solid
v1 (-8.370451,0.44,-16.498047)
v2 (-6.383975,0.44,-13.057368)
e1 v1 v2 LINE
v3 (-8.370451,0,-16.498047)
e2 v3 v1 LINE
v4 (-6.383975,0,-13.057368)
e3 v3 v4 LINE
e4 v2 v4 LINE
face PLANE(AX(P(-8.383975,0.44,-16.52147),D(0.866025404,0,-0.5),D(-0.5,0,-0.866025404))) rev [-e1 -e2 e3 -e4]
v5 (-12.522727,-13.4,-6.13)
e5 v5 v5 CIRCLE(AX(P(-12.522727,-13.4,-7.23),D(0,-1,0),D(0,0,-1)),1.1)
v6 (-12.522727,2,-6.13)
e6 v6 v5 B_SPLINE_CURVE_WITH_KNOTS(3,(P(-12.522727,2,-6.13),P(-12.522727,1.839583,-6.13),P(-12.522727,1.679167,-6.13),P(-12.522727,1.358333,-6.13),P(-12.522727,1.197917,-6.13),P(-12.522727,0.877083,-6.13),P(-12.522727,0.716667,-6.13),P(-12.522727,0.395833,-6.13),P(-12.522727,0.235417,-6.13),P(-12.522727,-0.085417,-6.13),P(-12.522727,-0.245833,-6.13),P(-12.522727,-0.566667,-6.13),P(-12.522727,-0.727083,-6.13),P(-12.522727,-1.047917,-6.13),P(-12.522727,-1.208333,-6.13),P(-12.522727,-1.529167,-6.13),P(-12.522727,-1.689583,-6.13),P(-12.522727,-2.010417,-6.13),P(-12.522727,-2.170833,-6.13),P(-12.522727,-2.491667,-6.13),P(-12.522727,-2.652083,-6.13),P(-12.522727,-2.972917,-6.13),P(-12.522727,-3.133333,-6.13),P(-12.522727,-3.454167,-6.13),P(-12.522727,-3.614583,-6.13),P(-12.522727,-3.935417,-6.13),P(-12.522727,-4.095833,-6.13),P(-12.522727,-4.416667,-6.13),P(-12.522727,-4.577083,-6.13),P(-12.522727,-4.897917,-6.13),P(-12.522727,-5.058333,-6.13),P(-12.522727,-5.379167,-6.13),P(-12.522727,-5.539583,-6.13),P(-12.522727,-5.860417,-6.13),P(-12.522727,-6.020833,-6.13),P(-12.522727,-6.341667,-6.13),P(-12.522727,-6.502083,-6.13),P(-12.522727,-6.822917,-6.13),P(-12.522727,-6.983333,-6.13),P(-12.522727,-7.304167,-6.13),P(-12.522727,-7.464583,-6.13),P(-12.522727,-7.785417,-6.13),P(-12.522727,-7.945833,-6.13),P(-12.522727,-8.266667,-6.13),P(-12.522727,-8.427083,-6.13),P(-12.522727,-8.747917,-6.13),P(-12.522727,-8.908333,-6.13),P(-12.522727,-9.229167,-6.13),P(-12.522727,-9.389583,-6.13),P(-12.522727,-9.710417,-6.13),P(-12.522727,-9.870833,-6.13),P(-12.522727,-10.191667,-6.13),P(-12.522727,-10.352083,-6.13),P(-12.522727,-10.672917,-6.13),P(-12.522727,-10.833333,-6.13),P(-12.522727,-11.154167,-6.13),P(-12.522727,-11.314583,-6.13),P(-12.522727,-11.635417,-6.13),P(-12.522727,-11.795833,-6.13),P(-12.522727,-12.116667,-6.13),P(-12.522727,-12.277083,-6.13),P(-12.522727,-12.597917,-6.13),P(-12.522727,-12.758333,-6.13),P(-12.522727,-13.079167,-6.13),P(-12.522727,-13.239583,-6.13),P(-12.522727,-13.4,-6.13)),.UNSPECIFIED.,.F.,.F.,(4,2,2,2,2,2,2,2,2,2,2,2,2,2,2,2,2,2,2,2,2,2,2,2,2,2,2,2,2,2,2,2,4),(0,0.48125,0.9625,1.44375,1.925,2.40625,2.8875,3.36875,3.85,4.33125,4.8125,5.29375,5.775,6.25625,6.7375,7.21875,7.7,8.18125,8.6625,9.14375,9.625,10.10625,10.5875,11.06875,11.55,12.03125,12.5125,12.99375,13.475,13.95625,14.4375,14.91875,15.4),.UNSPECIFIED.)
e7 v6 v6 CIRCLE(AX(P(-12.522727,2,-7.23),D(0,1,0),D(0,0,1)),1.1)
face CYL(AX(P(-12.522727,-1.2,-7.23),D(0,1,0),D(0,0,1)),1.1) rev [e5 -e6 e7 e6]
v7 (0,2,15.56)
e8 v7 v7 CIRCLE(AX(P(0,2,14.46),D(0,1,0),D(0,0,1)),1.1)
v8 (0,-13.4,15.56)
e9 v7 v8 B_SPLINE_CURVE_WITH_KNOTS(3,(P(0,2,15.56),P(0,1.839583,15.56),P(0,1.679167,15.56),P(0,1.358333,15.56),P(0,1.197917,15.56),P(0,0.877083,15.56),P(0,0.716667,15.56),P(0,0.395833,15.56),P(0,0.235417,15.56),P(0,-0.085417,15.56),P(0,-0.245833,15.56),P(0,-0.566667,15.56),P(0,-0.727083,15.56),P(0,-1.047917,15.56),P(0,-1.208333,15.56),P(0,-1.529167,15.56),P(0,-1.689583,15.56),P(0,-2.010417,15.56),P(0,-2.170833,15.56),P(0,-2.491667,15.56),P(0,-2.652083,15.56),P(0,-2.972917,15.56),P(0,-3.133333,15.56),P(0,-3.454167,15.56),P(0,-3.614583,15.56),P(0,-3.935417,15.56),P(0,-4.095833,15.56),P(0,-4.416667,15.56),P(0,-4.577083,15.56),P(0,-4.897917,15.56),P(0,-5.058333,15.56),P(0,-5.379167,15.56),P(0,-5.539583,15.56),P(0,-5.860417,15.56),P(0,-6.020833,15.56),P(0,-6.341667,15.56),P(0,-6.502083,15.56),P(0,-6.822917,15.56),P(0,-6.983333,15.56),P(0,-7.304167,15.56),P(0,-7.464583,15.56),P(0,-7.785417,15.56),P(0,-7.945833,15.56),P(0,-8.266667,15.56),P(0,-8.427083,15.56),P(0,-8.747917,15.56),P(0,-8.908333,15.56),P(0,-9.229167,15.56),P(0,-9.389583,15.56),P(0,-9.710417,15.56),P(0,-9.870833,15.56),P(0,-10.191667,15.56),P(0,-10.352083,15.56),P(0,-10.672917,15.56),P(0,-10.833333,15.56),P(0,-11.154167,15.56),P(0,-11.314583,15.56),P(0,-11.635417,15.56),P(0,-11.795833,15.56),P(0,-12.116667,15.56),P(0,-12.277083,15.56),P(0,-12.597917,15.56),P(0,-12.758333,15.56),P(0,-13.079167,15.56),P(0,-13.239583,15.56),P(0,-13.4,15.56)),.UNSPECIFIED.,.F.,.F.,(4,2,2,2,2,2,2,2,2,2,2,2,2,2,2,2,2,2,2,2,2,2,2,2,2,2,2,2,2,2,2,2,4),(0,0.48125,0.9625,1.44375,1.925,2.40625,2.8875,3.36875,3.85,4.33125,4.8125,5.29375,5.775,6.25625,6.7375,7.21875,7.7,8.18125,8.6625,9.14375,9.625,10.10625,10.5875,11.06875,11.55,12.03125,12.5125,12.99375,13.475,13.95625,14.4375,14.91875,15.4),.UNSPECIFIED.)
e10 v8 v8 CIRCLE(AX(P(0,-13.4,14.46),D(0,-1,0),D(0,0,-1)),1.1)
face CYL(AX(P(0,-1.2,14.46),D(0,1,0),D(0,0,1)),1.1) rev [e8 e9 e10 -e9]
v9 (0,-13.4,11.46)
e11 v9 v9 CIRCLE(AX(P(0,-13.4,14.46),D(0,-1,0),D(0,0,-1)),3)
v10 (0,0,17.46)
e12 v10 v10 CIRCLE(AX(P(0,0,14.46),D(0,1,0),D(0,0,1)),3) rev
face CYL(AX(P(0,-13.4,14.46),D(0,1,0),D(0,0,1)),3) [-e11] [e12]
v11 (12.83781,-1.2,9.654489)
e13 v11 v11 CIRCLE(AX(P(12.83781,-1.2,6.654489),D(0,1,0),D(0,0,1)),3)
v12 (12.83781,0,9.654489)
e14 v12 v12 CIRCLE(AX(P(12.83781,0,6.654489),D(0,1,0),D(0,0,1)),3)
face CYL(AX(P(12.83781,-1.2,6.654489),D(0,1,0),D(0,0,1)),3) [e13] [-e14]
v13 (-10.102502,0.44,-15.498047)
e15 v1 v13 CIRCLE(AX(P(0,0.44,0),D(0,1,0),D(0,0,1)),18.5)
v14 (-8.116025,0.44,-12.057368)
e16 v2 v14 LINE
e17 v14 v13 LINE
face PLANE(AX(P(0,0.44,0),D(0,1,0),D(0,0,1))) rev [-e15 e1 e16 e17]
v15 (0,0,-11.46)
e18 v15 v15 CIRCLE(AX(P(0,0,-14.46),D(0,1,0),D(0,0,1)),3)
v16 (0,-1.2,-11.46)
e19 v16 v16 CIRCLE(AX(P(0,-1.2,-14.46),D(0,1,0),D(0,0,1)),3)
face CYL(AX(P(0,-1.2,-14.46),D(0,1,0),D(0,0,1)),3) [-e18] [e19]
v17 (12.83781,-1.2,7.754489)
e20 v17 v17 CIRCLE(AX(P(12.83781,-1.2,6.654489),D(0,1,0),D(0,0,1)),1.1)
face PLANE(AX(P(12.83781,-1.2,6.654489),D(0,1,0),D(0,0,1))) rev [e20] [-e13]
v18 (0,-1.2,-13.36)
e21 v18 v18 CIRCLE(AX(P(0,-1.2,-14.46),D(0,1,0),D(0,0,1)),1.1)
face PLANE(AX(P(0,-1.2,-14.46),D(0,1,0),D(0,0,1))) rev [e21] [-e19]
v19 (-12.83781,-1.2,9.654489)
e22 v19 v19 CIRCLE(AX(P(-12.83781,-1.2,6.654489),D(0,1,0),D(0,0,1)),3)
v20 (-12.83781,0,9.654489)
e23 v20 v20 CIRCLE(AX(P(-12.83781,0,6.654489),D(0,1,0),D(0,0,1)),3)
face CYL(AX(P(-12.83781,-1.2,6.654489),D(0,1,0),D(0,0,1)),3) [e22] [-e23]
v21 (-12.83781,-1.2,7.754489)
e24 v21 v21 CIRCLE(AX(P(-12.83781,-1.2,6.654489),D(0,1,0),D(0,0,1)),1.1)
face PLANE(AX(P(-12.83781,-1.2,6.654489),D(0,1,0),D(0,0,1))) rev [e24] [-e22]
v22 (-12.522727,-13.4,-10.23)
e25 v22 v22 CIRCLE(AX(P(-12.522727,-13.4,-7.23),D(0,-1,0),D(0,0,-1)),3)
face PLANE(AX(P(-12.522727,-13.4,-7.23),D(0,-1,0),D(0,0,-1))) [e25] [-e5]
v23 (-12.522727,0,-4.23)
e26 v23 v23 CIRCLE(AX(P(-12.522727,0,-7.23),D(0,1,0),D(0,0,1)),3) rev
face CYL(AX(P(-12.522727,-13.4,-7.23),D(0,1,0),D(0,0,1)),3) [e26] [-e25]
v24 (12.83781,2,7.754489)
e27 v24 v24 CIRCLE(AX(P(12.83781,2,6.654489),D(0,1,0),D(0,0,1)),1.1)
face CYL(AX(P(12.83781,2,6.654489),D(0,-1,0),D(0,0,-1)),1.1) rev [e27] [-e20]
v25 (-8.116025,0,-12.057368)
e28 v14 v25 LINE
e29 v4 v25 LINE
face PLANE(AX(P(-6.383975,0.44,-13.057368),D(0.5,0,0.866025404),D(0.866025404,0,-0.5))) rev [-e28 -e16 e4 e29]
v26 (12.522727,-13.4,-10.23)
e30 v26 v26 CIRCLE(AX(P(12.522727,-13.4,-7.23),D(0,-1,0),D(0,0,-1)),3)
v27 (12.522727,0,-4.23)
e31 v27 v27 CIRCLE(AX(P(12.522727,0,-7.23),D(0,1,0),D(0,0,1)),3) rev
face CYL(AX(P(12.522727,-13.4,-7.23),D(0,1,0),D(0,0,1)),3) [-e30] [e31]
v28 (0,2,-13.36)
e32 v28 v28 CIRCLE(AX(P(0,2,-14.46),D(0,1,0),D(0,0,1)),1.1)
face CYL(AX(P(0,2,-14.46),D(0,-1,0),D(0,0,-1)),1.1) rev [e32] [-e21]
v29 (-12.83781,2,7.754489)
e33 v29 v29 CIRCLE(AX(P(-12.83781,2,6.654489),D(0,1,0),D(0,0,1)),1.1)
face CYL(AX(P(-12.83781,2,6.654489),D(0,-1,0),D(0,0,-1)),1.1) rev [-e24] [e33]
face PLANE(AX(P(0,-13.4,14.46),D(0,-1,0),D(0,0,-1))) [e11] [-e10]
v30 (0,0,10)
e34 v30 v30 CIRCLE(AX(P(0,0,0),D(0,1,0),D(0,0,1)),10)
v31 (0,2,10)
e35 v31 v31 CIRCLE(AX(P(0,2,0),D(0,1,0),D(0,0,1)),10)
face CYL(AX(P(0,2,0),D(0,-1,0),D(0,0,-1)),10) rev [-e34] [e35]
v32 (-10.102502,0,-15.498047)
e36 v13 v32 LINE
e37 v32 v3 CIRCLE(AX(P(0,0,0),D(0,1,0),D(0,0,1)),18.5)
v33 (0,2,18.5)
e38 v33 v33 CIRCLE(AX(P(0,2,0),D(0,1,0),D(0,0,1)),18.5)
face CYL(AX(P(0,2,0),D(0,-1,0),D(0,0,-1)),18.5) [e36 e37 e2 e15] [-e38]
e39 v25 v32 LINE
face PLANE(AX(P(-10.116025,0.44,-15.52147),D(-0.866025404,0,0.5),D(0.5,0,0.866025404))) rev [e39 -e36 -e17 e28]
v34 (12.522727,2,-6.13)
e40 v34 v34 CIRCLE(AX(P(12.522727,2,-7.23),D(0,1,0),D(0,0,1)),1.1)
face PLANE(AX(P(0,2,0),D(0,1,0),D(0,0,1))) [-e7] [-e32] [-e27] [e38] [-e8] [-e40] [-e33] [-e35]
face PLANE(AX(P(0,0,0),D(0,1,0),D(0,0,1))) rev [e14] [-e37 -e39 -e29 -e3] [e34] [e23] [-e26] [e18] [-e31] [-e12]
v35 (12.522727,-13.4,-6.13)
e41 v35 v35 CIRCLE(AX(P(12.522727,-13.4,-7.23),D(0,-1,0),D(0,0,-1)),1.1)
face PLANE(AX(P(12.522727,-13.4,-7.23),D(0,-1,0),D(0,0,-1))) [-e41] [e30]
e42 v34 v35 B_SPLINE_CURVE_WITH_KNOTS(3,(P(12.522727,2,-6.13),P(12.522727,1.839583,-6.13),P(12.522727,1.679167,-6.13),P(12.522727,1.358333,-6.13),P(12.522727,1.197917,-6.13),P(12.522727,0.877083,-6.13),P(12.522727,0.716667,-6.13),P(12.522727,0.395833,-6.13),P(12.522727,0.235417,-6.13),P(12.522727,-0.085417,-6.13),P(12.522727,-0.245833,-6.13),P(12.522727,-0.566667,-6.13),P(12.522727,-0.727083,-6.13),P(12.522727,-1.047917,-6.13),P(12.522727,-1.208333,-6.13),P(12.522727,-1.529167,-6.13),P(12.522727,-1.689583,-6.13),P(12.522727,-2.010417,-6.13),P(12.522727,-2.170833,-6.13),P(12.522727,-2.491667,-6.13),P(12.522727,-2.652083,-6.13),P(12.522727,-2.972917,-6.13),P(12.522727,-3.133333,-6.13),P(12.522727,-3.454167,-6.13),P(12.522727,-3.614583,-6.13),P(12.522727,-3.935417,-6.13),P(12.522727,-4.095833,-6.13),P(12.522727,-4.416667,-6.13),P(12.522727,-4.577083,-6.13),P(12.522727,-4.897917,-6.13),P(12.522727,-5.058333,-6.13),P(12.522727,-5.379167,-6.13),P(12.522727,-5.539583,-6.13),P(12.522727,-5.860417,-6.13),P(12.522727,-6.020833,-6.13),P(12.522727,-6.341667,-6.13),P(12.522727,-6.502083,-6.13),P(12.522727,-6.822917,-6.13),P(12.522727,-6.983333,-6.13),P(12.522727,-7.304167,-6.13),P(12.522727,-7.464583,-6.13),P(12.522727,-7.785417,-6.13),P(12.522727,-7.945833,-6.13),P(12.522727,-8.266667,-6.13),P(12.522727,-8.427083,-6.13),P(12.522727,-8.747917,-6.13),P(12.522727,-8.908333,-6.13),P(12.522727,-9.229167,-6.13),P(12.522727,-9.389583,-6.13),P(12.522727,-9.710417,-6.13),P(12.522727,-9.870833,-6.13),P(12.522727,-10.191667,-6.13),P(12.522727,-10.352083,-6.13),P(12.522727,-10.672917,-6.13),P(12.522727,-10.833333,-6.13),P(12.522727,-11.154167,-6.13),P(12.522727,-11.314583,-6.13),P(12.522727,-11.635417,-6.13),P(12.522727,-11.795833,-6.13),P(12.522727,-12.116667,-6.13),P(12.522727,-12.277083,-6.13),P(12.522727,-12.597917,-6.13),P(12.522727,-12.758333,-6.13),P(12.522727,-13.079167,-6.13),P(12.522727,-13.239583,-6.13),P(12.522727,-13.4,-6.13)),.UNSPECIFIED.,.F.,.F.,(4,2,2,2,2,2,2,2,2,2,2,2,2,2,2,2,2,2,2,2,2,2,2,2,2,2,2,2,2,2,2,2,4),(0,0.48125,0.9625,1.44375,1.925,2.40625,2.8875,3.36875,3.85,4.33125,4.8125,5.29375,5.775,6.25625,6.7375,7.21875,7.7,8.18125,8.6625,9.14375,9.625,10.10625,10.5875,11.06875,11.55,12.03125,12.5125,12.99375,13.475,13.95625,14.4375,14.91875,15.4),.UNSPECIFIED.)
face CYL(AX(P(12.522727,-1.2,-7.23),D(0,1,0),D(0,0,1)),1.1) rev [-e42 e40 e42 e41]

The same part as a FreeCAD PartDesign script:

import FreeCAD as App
import Part
import Sketcher
Q = App.Units.Quantity


def add_polygon(sketch, points):
    """Adds a closed chain of lines whose ends are joined by coincident constraints."""
    first, n = sketch.GeometryCount, len(points)
    for a, b in zip(points, points[1:] + points[:1]):
        sketch.addGeometry(Part.LineSegment(App.Vector(*a, 0), App.Vector(*b, 0)), False)
    for i in range(n):
        sketch.addConstraint(Sketcher.Constraint("Coincident", first + i, 2, first + (i + 1) % n, 1))

doc = App.newDocument("Part")
body = doc.addObject("PartDesign::Body", "Body")

# Sketch on XZ plane
sketch1 = doc.addObject("Sketcher::SketchObject", "Sketch")
body.addObject(sketch1)
sketch1.AttachmentSupport = (doc.XZ_Plane, [""])
sketch1.MapMode = "FlatFace"
sketch1.addGeometry([
    Part.Circle(App.Vector(0, 0, 0), App.Vector(0, 0, 1), 18.5),  # 0
    Part.Circle(App.Vector(0, -14.5, 0), App.Vector(0, 0, 1), 1.1),  # 1
    Part.Circle(App.Vector(-12.8, 6.7, 0), App.Vector(0, 0, 1), 1.1),  # 2
    Part.Circle(App.Vector(0, 0, 0), App.Vector(0, 0, 1), 10),  # 3
    Part.Circle(App.Vector(12.8, 6.7, 0), App.Vector(0, 0, 1), 1.1),  # 4
], False)
sketch1.addConstraint([
    Sketcher.Constraint("Coincident", 0, 3, -1, 1),
    Sketcher.Constraint("Coincident", 3, 3, -1, 1),
    Sketcher.Constraint("Equal", 1, 2),
    Sketcher.Constraint("Equal", 2, 4),
    Sketcher.Constraint("Symmetric", 2, 3, 4, 3, -2),
    Sketcher.Constraint("PointOnObject", 1, 3, -2),
    Sketcher.Constraint("Diameter", 0, Q("37 mm")),
    Sketcher.Constraint("Diameter", 3, Q("20 mm")),
    Sketcher.Constraint("Diameter", 1, Q("2.2 mm")),
    Sketcher.Constraint("DistanceY", 1, 3, -1, 1, Q("14.46 mm")),
    Sketcher.Constraint("DistanceX", 2, 3, -1, 1, Q("12.83781 mm")),
    Sketcher.Constraint("DistanceY", -1, 1, 2, 3, Q("6.654489 mm")),
])
pad1 = doc.addObject("PartDesign::Pad", "Pad")
body.addObject(pad1)
pad1.Profile = sketch1
pad1.Length = 2
pad1.Reversed = True

# Sketch on XZ plane
sketch2 = doc.addObject("Sketcher::SketchObject", "Sketch001")
body.addObject(sketch2)
sketch2.AttachmentSupport = (doc.XZ_Plane, [""])
sketch2.MapMode = "FlatFace"
sketch2.AttachmentOffset = App.Placement(App.Vector(0, 0, 1.2), App.Rotation())
sketch2.addGeometry([
    Part.Circle(App.Vector(0, -14.5, 0), App.Vector(0, 0, 1), 3),  # 0
    Part.Circle(App.Vector(0, -14.5, 0), App.Vector(0, 0, 1), 1.1),  # 1
    Part.Circle(App.Vector(-12.8, 6.7, 0), App.Vector(0, 0, 1), 3),  # 2
    Part.Circle(App.Vector(-12.8, 6.7, 0), App.Vector(0, 0, 1), 1.1),  # 3
    Part.Circle(App.Vector(12.8, 6.7, 0), App.Vector(0, 0, 1), 3),  # 4
    Part.Circle(App.Vector(12.8, 6.7, 0), App.Vector(0, 0, 1), 1.1),  # 5
], False)
sketch2.addConstraint([
    Sketcher.Constraint("Coincident", 1, 3, 0, 3),
    Sketcher.Constraint("Coincident", 3, 3, 2, 3),
    Sketcher.Constraint("Coincident", 5, 3, 4, 3),
    Sketcher.Constraint("Equal", 0, 2),
    Sketcher.Constraint("Equal", 1, 3),
    Sketcher.Constraint("Equal", 2, 4),
    Sketcher.Constraint("Equal", 3, 5),
    Sketcher.Constraint("Symmetric", 2, 3, 4, 3, -2),
    Sketcher.Constraint("PointOnObject", 0, 3, -2),
    Sketcher.Constraint("Diameter", 0, Q("6 mm")),
    Sketcher.Constraint("Diameter", 1, Q("2.2 mm")),
    Sketcher.Constraint("DistanceY", 0, 3, -1, 1, Q("14.46 mm")),
    Sketcher.Constraint("DistanceX", 2, 3, -1, 1, Q("12.83781 mm")),
    Sketcher.Constraint("DistanceY", -1, 1, 2, 3, Q("6.654489 mm")),
])
pad2 = doc.addObject("PartDesign::Pad", "Pad001")
body.addObject(pad2)
pad2.Profile = sketch2
pad2.Length = 1.2
pad2.Reversed = True

# Sketch on XZ plane
sketch3 = doc.addObject("Sketcher::SketchObject", "Sketch002")
body.addObject(sketch3)
sketch3.AttachmentSupport = (doc.XZ_Plane, [""])
sketch3.MapMode = "FlatFace"
sketch3.AttachmentOffset = App.Placement(App.Vector(0, 0, -2), App.Rotation())
sketch3.addGeometry([
    Part.Circle(App.Vector(-12.5, -7.2, 0), App.Vector(0, 0, 1), 1.1),
    Part.Circle(App.Vector(12.5, -7.2, 0), App.Vector(0, 0, 1), 1.1),
    Part.Circle(App.Vector(0, 14.5, 0), App.Vector(0, 0, 1), 1.1),
], False)
sketch3.addConstraint([
    Sketcher.Constraint("Equal", 0, 1),
    Sketcher.Constraint("Equal", 1, 2),
    Sketcher.Constraint("Symmetric", 0, 3, 1, 3, -2),
    Sketcher.Constraint("PointOnObject", 2, 3, -2),
    Sketcher.Constraint("Diameter", 0, Q("2.2 mm")),
    Sketcher.Constraint("DistanceY", 0, 3, -1, 1, Q("7.23 mm")),
    Sketcher.Constraint("DistanceY", -1, 1, 2, 3, Q("14.46 mm")),
    Sketcher.Constraint("DistanceX", 0, 3, -1, 1, Q("12.522727 mm")),
])
pocket1 = doc.addObject("PartDesign::Pocket", "Pocket")
body.addObject(pocket1)
pocket1.Profile = sketch3
pocket1.Type = "ThroughAll"
pocket1.Reversed = True

# Sketch on XZ plane
sketch4 = doc.addObject("Sketcher::SketchObject", "Sketch003")
body.addObject(sketch4)
sketch4.AttachmentSupport = (doc.XZ_Plane, [""])
sketch4.MapMode = "FlatFace"
sketch4.addGeometry([
    Part.Circle(App.Vector(-12.5, -7.2, 0), App.Vector(0, 0, 1), 3),  # 0
    Part.Circle(App.Vector(-12.5, -7.2, 0), App.Vector(0, 0, 1), 1.1),  # 1
    Part.Circle(App.Vector(0, 14.5, 0), App.Vector(0, 0, 1), 3),  # 2
    Part.Circle(App.Vector(0, 14.5, 0), App.Vector(0, 0, 1), 1.1),  # 3
    Part.Circle(App.Vector(12.5, -7.2, 0), App.Vector(0, 0, 1), 3),  # 4
    Part.Circle(App.Vector(12.5, -7.2, 0), App.Vector(0, 0, 1), 1.1),  # 5
], False)
sketch4.addConstraint([
    Sketcher.Constraint("Coincident", 1, 3, 0, 3),
    Sketcher.Constraint("Coincident", 3, 3, 2, 3),
    Sketcher.Constraint("Coincident", 5, 3, 4, 3),
    Sketcher.Constraint("Equal", 0, 2),
    Sketcher.Constraint("Equal", 1, 3),
    Sketcher.Constraint("Equal", 2, 4),
    Sketcher.Constraint("Equal", 3, 5),
    Sketcher.Constraint("Symmetric", 0, 3, 4, 3, -2),
    Sketcher.Constraint("PointOnObject", 2, 3, -2),
    Sketcher.Constraint("Diameter", 0, Q("6 mm")),
    Sketcher.Constraint("Diameter", 1, Q("2.2 mm")),
    Sketcher.Constraint("DistanceY", 0, 3, -1, 1, Q("7.23 mm")),
    Sketcher.Constraint("DistanceY", -1, 1, 2, 3, Q("14.46 mm")),
    Sketcher.Constraint("DistanceX", 0, 3, -1, 1, Q("12.522727 mm")),
])
pad3 = doc.addObject("PartDesign::Pad", "Pad002")
body.addObject(pad3)
pad3.Profile = sketch4
pad3.Length = 13.4

# Sketch on XZ plane
sketch5 = doc.addObject("Sketcher::SketchObject", "Sketch004")
body.addObject(sketch5)
sketch5.AttachmentSupport = (doc.XZ_Plane, [""])
sketch5.MapMode = "FlatFace"
add_polygon(sketch5, [(-8.4, -16.5), (-6.4, -13.1), (-8.1, -12.1), (-10.1, -15.5)])  # lines 0-3
sketch5.addConstraint([
    Sketcher.Constraint("Perpendicular", 0, 1),
    Sketcher.Constraint("Perpendicular", 1, 2),
    Sketcher.Constraint("Perpendicular", 2, 3),
    Sketcher.Constraint("Angle", 0, Q("60 deg")),
    Sketcher.Constraint("Distance", 0, Q("4 mm")),
    Sketcher.Constraint("Distance", 1, Q("2 mm")),
    Sketcher.Constraint("DistanceY", 0, 2, -1, 1, Q("13.057368 mm")),
    Sketcher.Constraint("DistanceX", 0, 2, -1, 1, Q("6.383975 mm")),
])
pocket2 = doc.addObject("PartDesign::Pocket", "Pocket001")
body.addObject(pocket2)
pocket2.Profile = sketch5
pocket2.Length = 0.44

doc.recompute()
